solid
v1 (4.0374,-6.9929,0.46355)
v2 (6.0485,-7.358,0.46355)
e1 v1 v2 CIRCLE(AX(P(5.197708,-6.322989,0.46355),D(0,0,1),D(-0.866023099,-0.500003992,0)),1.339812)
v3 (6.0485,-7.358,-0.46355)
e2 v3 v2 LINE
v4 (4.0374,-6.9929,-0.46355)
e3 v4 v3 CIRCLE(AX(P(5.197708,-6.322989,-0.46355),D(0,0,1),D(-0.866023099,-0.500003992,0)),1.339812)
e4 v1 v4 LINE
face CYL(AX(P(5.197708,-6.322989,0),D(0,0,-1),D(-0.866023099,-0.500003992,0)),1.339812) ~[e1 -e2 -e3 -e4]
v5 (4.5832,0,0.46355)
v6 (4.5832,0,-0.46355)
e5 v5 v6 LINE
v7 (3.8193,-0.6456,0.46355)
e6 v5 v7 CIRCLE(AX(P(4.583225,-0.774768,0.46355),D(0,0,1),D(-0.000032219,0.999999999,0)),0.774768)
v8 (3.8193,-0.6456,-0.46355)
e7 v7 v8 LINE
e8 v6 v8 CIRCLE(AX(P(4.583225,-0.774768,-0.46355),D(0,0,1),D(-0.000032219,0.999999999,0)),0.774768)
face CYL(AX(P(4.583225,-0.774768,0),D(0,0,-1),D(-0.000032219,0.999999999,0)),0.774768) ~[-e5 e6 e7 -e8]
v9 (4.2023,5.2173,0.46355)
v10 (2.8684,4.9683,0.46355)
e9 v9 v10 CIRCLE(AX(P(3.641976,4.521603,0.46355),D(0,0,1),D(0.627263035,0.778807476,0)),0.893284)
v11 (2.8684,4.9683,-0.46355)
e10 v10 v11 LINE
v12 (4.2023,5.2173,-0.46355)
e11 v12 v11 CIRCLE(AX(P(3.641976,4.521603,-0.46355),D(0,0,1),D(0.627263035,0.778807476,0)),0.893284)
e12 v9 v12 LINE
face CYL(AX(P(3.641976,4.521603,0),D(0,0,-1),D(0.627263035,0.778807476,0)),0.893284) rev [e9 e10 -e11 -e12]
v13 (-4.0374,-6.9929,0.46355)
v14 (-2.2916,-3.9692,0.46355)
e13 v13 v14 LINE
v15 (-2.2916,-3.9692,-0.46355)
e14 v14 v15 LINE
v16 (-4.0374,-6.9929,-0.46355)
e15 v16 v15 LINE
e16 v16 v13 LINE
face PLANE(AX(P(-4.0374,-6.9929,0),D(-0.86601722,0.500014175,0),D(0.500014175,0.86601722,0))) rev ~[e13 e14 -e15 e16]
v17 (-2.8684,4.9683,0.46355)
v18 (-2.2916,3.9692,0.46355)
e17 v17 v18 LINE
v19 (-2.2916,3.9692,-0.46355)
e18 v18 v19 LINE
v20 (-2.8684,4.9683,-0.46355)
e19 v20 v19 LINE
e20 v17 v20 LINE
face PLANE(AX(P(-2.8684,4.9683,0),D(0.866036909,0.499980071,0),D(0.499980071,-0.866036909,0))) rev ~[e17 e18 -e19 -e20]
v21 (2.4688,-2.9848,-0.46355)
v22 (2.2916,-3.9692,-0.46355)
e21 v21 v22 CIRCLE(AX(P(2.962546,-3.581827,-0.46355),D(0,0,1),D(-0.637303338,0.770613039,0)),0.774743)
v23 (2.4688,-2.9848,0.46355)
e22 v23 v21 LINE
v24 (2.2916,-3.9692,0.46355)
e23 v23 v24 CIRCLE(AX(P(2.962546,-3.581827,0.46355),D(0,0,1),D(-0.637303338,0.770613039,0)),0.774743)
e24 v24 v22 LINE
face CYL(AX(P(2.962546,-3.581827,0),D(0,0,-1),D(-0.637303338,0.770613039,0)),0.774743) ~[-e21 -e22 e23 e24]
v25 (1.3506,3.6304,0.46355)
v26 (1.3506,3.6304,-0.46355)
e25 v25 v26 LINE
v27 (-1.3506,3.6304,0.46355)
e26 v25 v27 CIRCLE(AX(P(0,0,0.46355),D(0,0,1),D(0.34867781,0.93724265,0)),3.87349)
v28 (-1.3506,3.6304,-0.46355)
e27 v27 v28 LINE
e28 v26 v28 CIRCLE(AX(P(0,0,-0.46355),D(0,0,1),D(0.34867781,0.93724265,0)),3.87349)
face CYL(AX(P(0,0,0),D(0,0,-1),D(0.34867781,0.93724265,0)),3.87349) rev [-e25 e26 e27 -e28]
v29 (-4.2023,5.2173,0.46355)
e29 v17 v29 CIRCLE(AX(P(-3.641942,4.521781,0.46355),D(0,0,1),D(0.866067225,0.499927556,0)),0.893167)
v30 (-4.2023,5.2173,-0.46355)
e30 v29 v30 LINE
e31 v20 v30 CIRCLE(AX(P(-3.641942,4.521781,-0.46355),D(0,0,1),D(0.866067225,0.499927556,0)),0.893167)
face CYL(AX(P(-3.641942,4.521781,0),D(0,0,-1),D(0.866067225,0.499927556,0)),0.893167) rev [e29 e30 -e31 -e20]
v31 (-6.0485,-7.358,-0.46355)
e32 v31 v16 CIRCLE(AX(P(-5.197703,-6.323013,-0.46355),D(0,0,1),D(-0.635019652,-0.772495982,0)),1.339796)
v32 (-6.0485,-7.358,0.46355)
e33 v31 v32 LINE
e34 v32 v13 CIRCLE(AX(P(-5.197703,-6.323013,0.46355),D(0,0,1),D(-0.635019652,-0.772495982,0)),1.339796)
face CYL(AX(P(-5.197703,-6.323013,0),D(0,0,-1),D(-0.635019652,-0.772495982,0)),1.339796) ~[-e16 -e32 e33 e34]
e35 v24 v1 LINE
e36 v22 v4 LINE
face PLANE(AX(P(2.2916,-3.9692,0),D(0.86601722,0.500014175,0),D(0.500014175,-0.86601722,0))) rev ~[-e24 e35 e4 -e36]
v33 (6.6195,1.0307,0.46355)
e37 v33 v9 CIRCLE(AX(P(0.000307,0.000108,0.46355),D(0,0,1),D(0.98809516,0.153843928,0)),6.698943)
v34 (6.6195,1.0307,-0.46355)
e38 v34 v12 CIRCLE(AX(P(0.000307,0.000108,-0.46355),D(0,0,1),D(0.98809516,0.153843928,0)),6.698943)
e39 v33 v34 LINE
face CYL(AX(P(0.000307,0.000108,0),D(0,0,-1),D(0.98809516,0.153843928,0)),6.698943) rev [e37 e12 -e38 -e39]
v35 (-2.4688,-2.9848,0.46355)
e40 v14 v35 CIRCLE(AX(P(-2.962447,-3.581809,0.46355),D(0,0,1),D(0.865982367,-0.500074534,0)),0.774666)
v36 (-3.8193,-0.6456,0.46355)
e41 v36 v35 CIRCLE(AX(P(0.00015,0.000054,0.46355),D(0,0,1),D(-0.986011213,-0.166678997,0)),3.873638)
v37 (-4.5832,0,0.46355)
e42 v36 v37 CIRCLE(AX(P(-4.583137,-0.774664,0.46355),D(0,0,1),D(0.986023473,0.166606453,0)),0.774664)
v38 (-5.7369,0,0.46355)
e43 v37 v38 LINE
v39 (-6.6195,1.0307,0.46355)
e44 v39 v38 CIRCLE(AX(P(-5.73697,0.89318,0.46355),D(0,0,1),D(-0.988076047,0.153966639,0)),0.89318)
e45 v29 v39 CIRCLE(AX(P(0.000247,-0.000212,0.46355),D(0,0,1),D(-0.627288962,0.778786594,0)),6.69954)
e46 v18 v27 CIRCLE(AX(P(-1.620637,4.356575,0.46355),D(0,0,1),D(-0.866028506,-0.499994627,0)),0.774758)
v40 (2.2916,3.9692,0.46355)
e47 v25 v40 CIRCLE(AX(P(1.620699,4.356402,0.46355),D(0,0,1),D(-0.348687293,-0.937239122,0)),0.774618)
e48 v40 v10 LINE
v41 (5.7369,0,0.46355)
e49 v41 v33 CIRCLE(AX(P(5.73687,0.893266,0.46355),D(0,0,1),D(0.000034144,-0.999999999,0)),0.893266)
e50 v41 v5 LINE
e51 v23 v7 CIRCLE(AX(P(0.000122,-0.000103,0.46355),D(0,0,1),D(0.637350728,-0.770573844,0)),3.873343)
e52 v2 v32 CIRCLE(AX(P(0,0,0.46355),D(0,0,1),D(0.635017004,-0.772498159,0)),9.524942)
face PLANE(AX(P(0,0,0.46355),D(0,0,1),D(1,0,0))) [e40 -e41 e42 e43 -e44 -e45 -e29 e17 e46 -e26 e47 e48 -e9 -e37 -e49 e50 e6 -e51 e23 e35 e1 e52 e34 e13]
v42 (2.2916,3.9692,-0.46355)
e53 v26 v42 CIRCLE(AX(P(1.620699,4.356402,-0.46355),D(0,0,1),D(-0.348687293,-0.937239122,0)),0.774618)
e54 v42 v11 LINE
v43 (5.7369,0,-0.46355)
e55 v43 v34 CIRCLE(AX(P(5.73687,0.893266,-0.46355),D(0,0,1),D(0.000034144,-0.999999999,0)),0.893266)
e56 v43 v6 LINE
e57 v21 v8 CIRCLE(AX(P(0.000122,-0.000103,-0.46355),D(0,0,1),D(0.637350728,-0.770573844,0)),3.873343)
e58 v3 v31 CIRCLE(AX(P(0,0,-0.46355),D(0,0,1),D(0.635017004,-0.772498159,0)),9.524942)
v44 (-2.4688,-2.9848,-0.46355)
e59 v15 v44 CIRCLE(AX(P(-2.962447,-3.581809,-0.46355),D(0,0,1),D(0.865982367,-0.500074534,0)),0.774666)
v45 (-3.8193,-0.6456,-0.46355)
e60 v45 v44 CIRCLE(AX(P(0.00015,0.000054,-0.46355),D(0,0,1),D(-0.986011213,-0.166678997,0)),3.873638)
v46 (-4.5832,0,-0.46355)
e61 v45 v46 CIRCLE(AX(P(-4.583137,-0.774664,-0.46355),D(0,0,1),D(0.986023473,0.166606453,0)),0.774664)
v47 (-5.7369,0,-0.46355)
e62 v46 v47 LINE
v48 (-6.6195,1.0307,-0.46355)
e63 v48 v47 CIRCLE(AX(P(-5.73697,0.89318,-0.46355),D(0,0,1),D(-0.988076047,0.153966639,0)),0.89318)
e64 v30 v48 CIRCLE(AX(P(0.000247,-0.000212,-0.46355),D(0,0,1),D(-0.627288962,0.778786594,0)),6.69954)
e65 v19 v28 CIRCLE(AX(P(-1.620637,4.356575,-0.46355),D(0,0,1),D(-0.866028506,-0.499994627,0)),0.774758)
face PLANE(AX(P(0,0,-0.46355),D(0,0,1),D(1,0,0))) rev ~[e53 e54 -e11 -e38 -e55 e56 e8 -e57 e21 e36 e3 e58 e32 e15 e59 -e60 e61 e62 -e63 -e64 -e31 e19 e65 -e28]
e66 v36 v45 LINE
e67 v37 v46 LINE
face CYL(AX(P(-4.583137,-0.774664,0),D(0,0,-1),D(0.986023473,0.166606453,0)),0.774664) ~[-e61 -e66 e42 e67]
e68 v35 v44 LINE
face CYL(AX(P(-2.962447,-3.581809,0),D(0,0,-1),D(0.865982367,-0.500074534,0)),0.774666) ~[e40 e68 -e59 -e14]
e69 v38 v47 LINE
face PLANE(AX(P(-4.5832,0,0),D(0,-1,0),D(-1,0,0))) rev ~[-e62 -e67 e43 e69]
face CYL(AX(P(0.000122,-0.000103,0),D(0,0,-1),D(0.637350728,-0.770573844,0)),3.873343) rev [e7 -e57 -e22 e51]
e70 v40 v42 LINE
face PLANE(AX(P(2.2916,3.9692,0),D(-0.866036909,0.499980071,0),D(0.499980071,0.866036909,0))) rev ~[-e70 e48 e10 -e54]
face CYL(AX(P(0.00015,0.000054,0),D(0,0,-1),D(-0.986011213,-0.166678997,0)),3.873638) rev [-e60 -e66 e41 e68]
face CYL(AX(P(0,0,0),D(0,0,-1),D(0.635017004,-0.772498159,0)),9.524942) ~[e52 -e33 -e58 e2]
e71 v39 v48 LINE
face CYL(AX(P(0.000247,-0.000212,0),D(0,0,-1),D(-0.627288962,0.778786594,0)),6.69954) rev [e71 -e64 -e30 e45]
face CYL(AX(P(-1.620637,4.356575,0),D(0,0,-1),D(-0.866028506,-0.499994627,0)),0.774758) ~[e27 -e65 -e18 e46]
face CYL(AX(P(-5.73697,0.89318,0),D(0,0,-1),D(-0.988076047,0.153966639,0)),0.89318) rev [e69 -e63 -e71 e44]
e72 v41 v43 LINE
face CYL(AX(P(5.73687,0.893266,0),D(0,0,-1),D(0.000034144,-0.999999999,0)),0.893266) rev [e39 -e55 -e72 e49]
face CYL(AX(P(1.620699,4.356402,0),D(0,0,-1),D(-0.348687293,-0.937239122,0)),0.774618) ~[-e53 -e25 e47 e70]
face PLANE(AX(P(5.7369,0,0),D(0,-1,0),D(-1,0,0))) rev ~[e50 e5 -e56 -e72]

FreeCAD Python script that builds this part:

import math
import FreeCAD as App
import Part
import Sketcher

V = App.Vector
Q = App.Units.Quantity

doc = App.newDocument("Part")
body = doc.addObject("PartDesign::Body", "Body")

sketch1 = doc.addObject("Sketcher::SketchObject", "Sketch")
body.addObject(sketch1)
sketch1.AttachmentSupport = (doc.XY_Plane, [""])
sketch1.MapMode = "FlatFace"
sketch1.addGeometry([
    Part.ArcOfCircle(Part.Circle(V(5.1977, -6.323, 0), V(0, 0, 1), 1.339799), math.radians(-149.999982), math.radians(-50.578804)),
    Part.ArcOfCircle(Part.Circle(V(0, 0, 0), V(0, 0, 1), 9.524942), math.radians(-50.578754), math.radians(230.578754)),
    Part.ArcOfCircle(Part.Circle(V(-5.1977, -6.323, 0), V(0, 0, 1), 1.339808), math.radians(-129.421196), math.radians(-30.000018)),
    Part.LineSegment(V(-4.0374, -6.9929, 0), V(-2.2916, -3.9692, 0)),
    Part.ArcOfCircle(Part.Circle(V(-2.9625, -3.5818, 0), V(0, 0, 1), 0.774716), math.radians(-30.003568), math.radians(50.410335)),
    Part.ArcOfCircle(Part.Circle(V(0, 0, 0), V(0, 0, 1), 3.8735), math.radians(-170.405633), math.radians(-129.59497)),
    Part.ArcOfCircle(Part.Circle(V(-4.5832, -0.7747, 0), V(0, 0, 1), 0.774732), math.radians(9.592415), math.radians(90)),
    Part.LineSegment(V(-4.5832, 0, 0), V(-5.7369, 0, 0)),
    Part.ArcOfCircle(Part.Circle(V(-5.7369, 0.8932, 0), V(0, 0, 1), 0.893246), math.radians(171.145087), math.radians(270)),
    Part.ArcOfCircle(Part.Circle(V(0, 0, 0), V(0, 0, 1), 6.699263), math.radians(128.849878), math.radians(171.149735)),
    Part.ArcOfCircle(Part.Circle(V(-3.642, 4.5217, 0), V(0, 0, 1), 0.893257), math.radians(29.99788), math.radians(128.851154)),
    Part.LineSegment(V(-2.8684, 4.9683, 0), V(-2.2916, 3.9692, 0)),
    Part.ArcOfCircle(Part.Circle(V(-1.6207, 4.3565, 0), V(0, 0, 1), 0.774666), math.radians(-150.002837), math.radians(-69.595437)),
    Part.ArcOfCircle(Part.Circle(V(0, 0, 0), V(0, 0, 1), 3.87349), math.radians(69.593535), math.radians(110.406465)),
    Part.ArcOfCircle(Part.Circle(V(1.6207, 4.3565, 0), V(0, 0, 1), 0.77471), math.radians(-110.404563), math.radians(-29.997163)),
    Part.LineSegment(V(2.2916, 3.9692, 0), V(2.8684, 4.9683, 0)),
    Part.ArcOfCircle(Part.Circle(V(3.642, 4.5217, 0), V(0, 0, 1), 0.893194), math.radians(51.148846), math.radians(150.00212)),
    Part.ArcOfCircle(Part.Circle(V(0, 0, 0), V(0, 0, 1), 6.69922), math.radians(8.850265), math.radians(51.150122)),
    Part.ArcOfCircle(Part.Circle(V(5.7369, 0.8932, 0), V(0, 0, 1), 0.8932), math.radians(-90), math.radians(8.854913)),
    Part.LineSegment(V(5.7369, 0, 0), V(4.5832, 0, 0)),
    Part.ArcOfCircle(Part.Circle(V(4.5832, -0.7747, 0), V(0, 0, 1), 0.7747), math.radians(90), math.radians(170.407585)),
    Part.ArcOfCircle(Part.Circle(V(0, 0, 0), V(0, 0, 1), 3.873481), math.radians(-50.40503), math.radians(-9.594367)),
    Part.ArcOfCircle(Part.Circle(V(2.9625, -3.5818, 0), V(0, 0, 1), 0.774693), math.radians(129.589665), math.radians(210.003568)),
    Part.LineSegment(V(2.2916, -3.9692, 0), V(4.0374, -6.9929, 0)),
], False)
sketch1.addConstraint([
    Sketcher.Constraint("Tangent", 0, 2, 1, 1),
    Sketcher.Constraint("Tangent", 1, 2, 2, 1),
    Sketcher.Constraint("Tangent", 2, 2, 3, 1),
    Sketcher.Constraint("Tangent", 3, 2, 4, 1),
    Sketcher.Constraint("Tangent", 4, 2, 5, 2),
    Sketcher.Constraint("Tangent", 5, 1, 6, 1),
    Sketcher.Constraint("Tangent", 6, 2, 7, 1),
    Sketcher.Constraint("Tangent", 7, 2, 8, 2),
    Sketcher.Constraint("Tangent", 8, 1, 9, 2),
    Sketcher.Constraint("Tangent", 9, 1, 10, 2),
    Sketcher.Constraint("Tangent", 10, 1, 11, 1),
    Sketcher.Constraint("Tangent", 11, 2, 12, 1),
    Sketcher.Constraint("Tangent", 12, 2, 13, 2),
    Sketcher.Constraint("Tangent", 13, 1, 14, 1),
    Sketcher.Constraint("Tangent", 14, 2, 15, 1),
    Sketcher.Constraint("Tangent", 15, 2, 16, 2),
    Sketcher.Constraint("Tangent", 16, 1, 17, 2),
    Sketcher.Constraint("Tangent", 17, 1, 18, 2),
    Sketcher.Constraint("Tangent", 18, 1, 19, 1),
    Sketcher.Constraint("Tangent", 19, 2, 20, 1),
    Sketcher.Constraint("Tangent", 20, 2, 21, 2),
    Sketcher.Constraint("Tangent", 21, 1, 22, 1),
    Sketcher.Constraint("Tangent", 22, 2, 23, 1),
    Sketcher.Constraint("Tangent", 23, 2, 0, 1),
    Sketcher.Constraint("Horizontal", 7),
    Sketcher.Constraint("Horizontal", 19),
    Sketcher.Constraint("Coincident", 1, 3, -1, 1),
    Sketcher.Constraint("Coincident", 5, 3, -1, 1),
    Sketcher.Constraint("Coincident", 9, 3, -1, 1),
    Sketcher.Constraint("Coincident", 13, 3, -1, 1),
    Sketcher.Constraint("Coincident", 17, 3, -1, 1),
    Sketcher.Constraint("Coincident", 21, 3, -1, 1),
    Sketcher.Constraint("Equal", 0, 2),
    Sketcher.Constraint("Equal", 4, 6),
    Sketcher.Constraint("Equal", 8, 10),
    Sketcher.Constraint("Equal", 6, 12),
    Sketcher.Constraint("Equal", 5, 13),
    Sketcher.Constraint("Equal", 12, 14),
    Sketcher.Constraint("Equal", 10, 16),
    Sketcher.Constraint("Equal", 9, 17),
    Sketcher.Constraint("Equal", 16, 18),
    Sketcher.Constraint("Equal", 14, 20),
    Sketcher.Constraint("Equal", 13, 21),
    Sketcher.Constraint("Equal", 20, 22),
    Sketcher.Constraint("Symmetric", 3, 2, 14, 2, -1, 1),
    Sketcher.Constraint("Symmetric", 7, 2, 18, 1, -1, 1),
    Sketcher.Constraint("Symmetric", 11, 2, 22, 2, -1, 1),
    Sketcher.Constraint("Symmetric", 11, 2, 14, 2, -2),
    Sketcher.Constraint("Parallel", 3, 15),
    Sketcher.Constraint("Angle", 3, Q("59.999 deg")),
    Sketcher.Constraint("Radius", 1, Q("0.375 in")),
    Sketcher.Constraint("Radius", 4, Q("0.0305 in")),
    Sketcher.Constraint("Radius", 5, Q("0.1525 in")),
    Sketcher.Constraint("Radius", 0, Q("1.3398 mm")),
    Sketcher.Constraint("Radius", 8, Q("0.8932 mm")),
    Sketcher.Constraint("Radius", 9, Q("6.6993 mm")),
])
pad1 = doc.addObject("PartDesign::Pad", "Pad")
body.addObject(pad1)
pad1.Profile = sketch1
pad1.Length = Q("0.0365 in")
pad1.Midplane = True

doc.recompute()
